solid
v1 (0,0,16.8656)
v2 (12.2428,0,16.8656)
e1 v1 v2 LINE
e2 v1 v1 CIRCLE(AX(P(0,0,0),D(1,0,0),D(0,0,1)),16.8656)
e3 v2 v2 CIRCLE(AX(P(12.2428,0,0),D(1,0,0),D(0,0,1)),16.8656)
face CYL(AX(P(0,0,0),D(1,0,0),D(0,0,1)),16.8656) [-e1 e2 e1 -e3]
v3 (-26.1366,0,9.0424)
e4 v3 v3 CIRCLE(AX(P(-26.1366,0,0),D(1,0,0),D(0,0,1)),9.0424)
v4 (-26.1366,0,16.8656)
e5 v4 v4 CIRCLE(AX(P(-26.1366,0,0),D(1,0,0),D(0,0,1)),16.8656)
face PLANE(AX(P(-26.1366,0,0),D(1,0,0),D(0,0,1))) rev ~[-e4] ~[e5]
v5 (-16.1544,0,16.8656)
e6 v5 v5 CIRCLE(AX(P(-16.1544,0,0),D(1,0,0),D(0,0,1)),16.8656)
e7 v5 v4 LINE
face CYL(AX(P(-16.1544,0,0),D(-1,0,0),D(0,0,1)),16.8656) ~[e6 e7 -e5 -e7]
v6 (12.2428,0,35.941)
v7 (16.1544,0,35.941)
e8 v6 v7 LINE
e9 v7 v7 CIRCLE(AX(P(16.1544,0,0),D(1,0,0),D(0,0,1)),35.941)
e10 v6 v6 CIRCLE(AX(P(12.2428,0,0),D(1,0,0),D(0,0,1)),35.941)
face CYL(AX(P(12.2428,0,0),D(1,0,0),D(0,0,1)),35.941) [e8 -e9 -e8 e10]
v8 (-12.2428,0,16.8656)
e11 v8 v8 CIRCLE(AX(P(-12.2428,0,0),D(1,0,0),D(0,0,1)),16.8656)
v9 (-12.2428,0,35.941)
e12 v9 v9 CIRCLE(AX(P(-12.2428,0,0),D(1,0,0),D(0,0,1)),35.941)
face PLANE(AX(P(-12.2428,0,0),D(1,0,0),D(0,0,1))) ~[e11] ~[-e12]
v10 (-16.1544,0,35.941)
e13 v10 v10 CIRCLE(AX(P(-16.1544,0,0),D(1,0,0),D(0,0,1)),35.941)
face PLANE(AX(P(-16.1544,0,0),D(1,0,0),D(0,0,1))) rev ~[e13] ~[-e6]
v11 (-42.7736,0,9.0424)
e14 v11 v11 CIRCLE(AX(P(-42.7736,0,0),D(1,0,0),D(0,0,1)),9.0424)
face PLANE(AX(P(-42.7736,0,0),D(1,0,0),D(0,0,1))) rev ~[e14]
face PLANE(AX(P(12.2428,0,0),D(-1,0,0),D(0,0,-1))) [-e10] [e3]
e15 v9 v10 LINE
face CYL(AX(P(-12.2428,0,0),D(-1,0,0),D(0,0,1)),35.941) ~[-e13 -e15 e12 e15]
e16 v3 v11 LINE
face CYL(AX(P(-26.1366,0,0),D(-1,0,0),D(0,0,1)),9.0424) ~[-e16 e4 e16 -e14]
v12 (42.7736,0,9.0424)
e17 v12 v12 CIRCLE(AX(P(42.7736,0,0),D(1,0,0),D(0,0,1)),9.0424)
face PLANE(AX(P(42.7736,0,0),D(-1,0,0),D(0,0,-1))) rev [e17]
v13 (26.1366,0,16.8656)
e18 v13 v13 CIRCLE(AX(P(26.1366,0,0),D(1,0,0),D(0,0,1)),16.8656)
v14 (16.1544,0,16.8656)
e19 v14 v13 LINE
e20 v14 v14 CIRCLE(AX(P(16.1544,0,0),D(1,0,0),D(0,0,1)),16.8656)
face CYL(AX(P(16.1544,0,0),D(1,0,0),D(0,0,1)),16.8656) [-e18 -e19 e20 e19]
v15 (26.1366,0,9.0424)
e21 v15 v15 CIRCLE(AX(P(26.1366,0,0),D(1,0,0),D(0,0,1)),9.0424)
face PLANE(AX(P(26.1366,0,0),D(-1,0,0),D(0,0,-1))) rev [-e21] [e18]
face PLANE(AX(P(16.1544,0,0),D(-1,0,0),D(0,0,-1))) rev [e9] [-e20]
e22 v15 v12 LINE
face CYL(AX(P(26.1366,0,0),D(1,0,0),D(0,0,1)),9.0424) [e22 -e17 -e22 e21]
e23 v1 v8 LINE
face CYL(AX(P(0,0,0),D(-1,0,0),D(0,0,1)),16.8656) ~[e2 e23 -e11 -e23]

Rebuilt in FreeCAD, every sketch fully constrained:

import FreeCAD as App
import Part
import Sketcher
from FreeCAD import Vector
Q = App.Units.Quantity

doc = App.newDocument("Part")
body = doc.addObject("PartDesign::Body", "Body")

# Sketch on XZ plane
sketch1 = doc.addObject("Sketcher::SketchObject", "Sketch")
body.addObject(sketch1)
sketch1.AttachmentSupport = (doc.XZ_Plane, [""])
sketch1.MapMode = "FlatFace"
sketch1.addGeometry([
    Part.LineSegment(Vector(-26.1, 9, 0), Vector(-42.8, 9, 0)),  # 0
    Part.LineSegment(Vector(-42.8, 9, 0), Vector(-42.8, 0, 0)),  # 1
    Part.LineSegment(Vector(-42.8, 0, 0), Vector(0, 0, 0)),  # 2
    Part.LineSegment(Vector(0, 0, 0), Vector(0, 16.9, 0)),  # 3
    Part.LineSegment(Vector(0, 16.9, 0), Vector(-12.2, 16.9, 0)),  # 4
    Part.LineSegment(Vector(-12.2, 16.9, 0), Vector(-12.2, 35.9, 0)),  # 5
    Part.LineSegment(Vector(-12.2, 35.9, 0), Vector(-16.2, 35.9, 0)),  # 6
    Part.LineSegment(Vector(-16.2, 35.9, 0), Vector(-16.2, 16.9, 0)),  # 7
    Part.LineSegment(Vector(-16.2, 16.9, 0), Vector(-26.1, 16.9, 0)),  # 8
    Part.LineSegment(Vector(-26.1, 16.9, 0), Vector(-26.1, 9, 0)),  # 9
], False)
sketch1.addConstraint([
    Sketcher.Constraint("Coincident", 0, 2, 1, 1),
    Sketcher.Constraint("Coincident", 1, 2, 2, 1),
    Sketcher.Constraint("Coincident", 2, 2, 3, 1),
    Sketcher.Constraint("Coincident", 3, 2, 4, 1),
    Sketcher.Constraint("Coincident", 4, 2, 5, 1),
    Sketcher.Constraint("Coincident", 5, 2, 6, 1),
    Sketcher.Constraint("Coincident", 6, 2, 7, 1),
    Sketcher.Constraint("Coincident", 7, 2, 8, 1),
    Sketcher.Constraint("Coincident", 8, 2, 9, 1),
    Sketcher.Constraint("Coincident", 9, 2, 0, 1),
    Sketcher.Constraint("Horizontal", 0),
    Sketcher.Constraint("Vertical", 1),
    Sketcher.Constraint("Horizontal", 2),
    Sketcher.Constraint("Vertical", 3),
    Sketcher.Constraint("Horizontal", 4),
    Sketcher.Constraint("Vertical", 5),
    Sketcher.Constraint("Horizontal", 6),
    Sketcher.Constraint("Vertical", 7),
    Sketcher.Constraint("Horizontal", 8),
    Sketcher.Constraint("Vertical", 9),
    Sketcher.Constraint("Coincident", 2, 2, -1, 1),
    Sketcher.Constraint("Horizontal", 4, 2, 7, 2),
    Sketcher.Constraint("DistanceX", 0, 2, 0, 1, Q("0.655 in")),
    Sketcher.Constraint("DistanceX", 2, 1, 2, 2, Q("1.684 in")),
    Sketcher.Constraint("DistanceX", 4, 2, 4, 1, Q("0.482 in")),
    Sketcher.Constraint("DistanceX", 6, 2, 6, 1, Q("0.154 in")),
    Sketcher.Constraint("DistanceY", 1, 2, 1, 1, Q("0.356 in")),
    Sketcher.Constraint("DistanceY", 3, 1, 3, 2, Q("0.664 in")),
    Sketcher.Constraint("DistanceY", 5, 1, 5, 2, Q("0.751 in")),
])
revolution = doc.addObject("PartDesign::Revolution", "Revolution")
body.addObject(revolution)
revolution.Profile = sketch1
revolution.ReferenceAxis = (sketch1, ["H_Axis"])
revolution.Angle = 360
body2 = doc.addObject("PartDesign::Body", "Body001")
doc.recompute()

body2.BaseFeature = body
doc.recompute()

mirroring = doc.addObject("Part::Mirroring", "Mirroring")
mirroring.Source = body
mirroring.Base = Vector(0, 0, 0)
mirroring.Normal = Vector(1, 0, 0)
body3 = doc.addObject("PartDesign::Body", "Body002")
body3.BaseFeature = mirroring
boolean = doc.addObject("PartDesign::Boolean", "Boolean")
body2.addObject(boolean)
boolean.Type = "Fuse"
boolean.addObjects([body3])
doc.recompute()
mirroring.Visibility = False

doc.recompute()
